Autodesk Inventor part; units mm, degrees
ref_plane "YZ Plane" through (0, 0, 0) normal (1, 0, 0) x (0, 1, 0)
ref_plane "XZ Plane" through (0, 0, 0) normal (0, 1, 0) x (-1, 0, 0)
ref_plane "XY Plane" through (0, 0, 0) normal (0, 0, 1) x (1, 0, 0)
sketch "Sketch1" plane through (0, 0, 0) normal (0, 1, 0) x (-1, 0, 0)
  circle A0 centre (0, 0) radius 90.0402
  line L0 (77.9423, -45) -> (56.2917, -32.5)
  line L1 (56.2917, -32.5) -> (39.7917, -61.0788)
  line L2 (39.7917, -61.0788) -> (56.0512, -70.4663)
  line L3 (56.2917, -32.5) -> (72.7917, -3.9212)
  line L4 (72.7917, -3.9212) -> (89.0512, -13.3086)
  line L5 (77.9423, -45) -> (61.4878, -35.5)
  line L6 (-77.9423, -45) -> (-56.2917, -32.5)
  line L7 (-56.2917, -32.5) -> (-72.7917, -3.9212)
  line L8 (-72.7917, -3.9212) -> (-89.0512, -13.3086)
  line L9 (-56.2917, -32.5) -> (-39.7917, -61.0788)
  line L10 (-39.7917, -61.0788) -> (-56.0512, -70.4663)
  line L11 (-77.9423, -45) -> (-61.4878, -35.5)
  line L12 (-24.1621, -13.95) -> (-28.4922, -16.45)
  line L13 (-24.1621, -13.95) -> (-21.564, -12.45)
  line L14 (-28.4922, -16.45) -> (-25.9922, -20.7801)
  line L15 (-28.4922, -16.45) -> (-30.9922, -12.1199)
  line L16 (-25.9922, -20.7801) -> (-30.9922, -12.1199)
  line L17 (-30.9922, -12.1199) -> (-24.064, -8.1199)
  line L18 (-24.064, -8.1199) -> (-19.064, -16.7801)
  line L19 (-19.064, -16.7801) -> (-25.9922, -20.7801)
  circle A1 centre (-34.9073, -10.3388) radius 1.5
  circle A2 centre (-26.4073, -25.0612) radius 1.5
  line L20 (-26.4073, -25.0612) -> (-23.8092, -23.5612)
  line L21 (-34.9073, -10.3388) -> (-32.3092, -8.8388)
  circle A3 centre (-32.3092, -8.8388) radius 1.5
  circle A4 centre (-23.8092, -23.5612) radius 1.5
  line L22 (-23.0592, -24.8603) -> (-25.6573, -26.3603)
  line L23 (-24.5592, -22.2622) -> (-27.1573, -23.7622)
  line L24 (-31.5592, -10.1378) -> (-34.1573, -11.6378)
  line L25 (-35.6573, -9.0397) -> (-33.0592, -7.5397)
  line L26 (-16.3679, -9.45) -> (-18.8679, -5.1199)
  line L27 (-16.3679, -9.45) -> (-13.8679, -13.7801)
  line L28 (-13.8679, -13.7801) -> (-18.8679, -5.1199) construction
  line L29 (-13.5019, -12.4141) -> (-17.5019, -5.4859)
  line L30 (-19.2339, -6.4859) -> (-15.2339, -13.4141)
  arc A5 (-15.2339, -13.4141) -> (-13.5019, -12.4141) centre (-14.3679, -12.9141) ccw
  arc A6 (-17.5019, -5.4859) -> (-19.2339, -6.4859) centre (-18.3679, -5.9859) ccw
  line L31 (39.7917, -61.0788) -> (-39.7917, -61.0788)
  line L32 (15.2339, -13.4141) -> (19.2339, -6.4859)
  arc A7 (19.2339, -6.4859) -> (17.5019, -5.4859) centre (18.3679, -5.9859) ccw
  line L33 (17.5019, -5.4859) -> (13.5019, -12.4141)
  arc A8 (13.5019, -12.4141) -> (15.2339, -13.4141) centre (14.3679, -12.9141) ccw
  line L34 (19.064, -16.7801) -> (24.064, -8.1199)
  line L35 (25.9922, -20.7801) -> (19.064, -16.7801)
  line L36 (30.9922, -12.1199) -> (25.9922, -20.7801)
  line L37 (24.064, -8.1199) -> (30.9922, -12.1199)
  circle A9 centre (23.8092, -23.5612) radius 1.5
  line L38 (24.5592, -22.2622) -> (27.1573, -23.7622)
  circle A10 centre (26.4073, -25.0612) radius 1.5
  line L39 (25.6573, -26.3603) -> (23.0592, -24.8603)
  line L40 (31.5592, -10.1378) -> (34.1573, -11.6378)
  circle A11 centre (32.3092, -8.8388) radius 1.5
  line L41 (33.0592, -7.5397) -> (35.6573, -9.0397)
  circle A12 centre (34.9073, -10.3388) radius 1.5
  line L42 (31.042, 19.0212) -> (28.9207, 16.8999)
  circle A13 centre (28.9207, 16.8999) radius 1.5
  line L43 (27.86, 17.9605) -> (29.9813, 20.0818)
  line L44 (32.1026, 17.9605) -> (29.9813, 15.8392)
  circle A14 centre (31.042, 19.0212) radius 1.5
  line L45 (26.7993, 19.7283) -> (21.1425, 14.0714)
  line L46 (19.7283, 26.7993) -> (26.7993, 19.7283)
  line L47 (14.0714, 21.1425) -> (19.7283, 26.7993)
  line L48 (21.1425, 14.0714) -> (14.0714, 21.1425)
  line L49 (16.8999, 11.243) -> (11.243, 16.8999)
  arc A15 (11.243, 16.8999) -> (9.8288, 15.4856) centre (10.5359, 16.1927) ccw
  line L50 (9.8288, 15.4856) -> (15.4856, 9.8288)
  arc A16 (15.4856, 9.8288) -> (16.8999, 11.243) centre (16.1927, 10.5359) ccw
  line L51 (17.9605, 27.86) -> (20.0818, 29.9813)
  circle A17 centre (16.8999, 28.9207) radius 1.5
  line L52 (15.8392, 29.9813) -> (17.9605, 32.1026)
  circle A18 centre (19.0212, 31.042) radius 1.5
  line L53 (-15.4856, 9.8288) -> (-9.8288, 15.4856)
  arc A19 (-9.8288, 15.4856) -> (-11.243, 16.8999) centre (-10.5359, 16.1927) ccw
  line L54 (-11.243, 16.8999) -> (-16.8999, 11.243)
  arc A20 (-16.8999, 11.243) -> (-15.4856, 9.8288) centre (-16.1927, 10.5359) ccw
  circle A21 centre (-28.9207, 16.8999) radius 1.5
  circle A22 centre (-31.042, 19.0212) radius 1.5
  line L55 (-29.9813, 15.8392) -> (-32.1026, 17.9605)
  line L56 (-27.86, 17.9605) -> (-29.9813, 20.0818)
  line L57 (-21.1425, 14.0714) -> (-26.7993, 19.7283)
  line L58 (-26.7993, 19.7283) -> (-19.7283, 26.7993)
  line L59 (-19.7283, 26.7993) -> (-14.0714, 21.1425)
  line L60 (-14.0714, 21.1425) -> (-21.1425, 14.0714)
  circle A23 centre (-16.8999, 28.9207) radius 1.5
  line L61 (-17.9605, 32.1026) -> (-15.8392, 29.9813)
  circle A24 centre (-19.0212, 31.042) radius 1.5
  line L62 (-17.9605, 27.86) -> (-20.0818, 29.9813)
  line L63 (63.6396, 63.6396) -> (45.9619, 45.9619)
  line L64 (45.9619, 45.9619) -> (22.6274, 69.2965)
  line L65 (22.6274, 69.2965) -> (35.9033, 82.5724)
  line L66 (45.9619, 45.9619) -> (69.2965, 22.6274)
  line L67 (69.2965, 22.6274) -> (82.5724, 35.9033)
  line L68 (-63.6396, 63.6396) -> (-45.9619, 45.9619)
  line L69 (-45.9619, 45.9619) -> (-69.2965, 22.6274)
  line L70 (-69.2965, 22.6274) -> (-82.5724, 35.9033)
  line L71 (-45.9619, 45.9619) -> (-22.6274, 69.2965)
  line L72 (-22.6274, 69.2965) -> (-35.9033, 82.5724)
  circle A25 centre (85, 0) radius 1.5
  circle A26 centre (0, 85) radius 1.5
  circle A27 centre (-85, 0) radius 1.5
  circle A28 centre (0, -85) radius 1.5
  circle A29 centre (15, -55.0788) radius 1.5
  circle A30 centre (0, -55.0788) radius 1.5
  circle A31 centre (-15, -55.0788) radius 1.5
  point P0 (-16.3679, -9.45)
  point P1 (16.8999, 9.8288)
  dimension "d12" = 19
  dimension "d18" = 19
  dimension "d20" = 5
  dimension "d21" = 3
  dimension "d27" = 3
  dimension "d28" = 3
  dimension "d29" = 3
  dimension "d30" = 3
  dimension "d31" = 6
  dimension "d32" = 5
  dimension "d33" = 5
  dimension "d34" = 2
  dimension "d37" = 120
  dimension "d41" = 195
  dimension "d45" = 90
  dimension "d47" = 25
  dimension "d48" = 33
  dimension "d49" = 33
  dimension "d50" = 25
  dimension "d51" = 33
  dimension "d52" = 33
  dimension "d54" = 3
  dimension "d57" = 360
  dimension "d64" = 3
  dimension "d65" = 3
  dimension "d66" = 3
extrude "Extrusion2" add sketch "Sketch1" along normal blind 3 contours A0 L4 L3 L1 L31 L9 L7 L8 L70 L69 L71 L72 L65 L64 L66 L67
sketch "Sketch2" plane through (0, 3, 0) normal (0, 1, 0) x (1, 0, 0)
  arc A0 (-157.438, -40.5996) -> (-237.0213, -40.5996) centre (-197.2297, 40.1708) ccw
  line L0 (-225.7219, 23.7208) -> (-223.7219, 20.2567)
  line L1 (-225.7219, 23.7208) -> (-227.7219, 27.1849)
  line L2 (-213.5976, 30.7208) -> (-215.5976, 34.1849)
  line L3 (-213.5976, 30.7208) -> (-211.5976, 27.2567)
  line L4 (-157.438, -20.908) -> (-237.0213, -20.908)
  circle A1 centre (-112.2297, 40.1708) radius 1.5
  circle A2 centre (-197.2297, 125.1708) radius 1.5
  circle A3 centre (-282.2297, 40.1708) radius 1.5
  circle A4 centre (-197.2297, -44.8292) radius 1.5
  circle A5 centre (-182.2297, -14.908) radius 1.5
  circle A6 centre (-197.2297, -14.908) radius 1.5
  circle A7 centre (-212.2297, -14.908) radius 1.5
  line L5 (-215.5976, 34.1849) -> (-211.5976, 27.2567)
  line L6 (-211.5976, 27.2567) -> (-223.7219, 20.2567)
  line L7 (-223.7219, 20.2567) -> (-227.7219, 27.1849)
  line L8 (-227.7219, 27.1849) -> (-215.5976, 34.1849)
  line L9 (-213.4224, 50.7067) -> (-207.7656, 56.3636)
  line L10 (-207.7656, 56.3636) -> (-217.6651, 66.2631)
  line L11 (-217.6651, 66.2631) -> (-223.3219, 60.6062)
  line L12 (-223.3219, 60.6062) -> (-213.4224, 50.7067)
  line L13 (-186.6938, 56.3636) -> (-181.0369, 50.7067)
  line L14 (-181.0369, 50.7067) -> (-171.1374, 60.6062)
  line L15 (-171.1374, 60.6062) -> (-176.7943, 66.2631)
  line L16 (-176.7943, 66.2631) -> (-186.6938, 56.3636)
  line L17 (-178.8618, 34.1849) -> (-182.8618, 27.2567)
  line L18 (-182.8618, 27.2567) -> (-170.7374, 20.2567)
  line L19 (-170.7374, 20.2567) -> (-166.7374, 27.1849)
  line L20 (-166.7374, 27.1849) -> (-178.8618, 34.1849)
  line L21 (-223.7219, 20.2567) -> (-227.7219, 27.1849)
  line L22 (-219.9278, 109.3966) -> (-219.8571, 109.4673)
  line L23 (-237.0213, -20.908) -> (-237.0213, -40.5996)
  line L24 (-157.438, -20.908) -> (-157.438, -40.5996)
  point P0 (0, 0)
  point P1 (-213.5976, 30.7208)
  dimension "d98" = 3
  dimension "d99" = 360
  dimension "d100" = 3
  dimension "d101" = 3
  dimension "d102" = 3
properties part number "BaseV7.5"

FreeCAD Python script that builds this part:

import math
import FreeCAD as App
import Part
import Sketcher
from FreeCAD import Vector
Q = App.Units.Quantity


def add_polygon(sketch, points):
    """Adds a closed chain of lines whose ends are joined by coincident constraints."""
    first, n = sketch.GeometryCount, len(points)
    for a, b in zip(points, points[1:] + points[:1]):
        sketch.addGeometry(Part.LineSegment(App.Vector(*a, 0), App.Vector(*b, 0)), False)
    for i in range(n):
        sketch.addConstraint(Sketcher.Constraint("Coincident", first + i, 2, first + (i + 1) % n, 1))

doc = App.newDocument("Part")
params = doc.addObject("Spreadsheet::Sheet", "Params")
for row, (alias, value) in enumerate([
    ("sketch1_diameter", "3 mm"),
    ("sketch1_radius", "1 mm"),
    ("sketch1_length", "33 mm"),
    ("sketch1_length2", "66 mm"),
    ("sketch1_length3", "10 mm"),
    ("pad1_length", "3 mm"),
], start=1):
    params.set(f"A{row}", alias)
    params.set(f"B{row}", "=" + value)
    params.setAlias(f"B{row}", alias)

body = doc.addObject("PartDesign::Body", "Body")

sketch1 = doc.addObject("Sketcher::SketchObject", "Sketch")
body.addObject(sketch1)
sketch1.AttachmentSupport = (doc.XZ_Plane, [""])
sketch1.MapMode = "FlatFace"
sketch1.addGeometry(Part.ArcOfCircle(Part.Circle(Vector(0, 0, 0), Vector(0, 0, 1), 90), math.radians(157), math.radians(188)), False)
sketch1.addGeometry(Part.LineSegment(Vector(-82.6, 35.9, 0), Vector(-69.3, 22.6, 0)), False)
sketch1.addGeometry(Part.LineSegment(Vector(-69.3, 22.6, 0), Vector(-46, 46, 0)), False)
sketch1.addGeometry(Part.LineSegment(Vector(-46, 46, 0), Vector(-22.6, 69.3, 0)), False)
sketch1.addGeometry(Part.LineSegment(Vector(-22.6, 69.3, 0), Vector(-35.9, 82.6, 0)), False)
sketch1.addGeometry(Part.ArcOfCircle(Part.Circle(Vector(0, 0, 0), Vector(0, 0, 1), 90), math.radians(67), math.radians(113)), False)
sketch1.addGeometry(Part.LineSegment(Vector(35.9, 82.6, 0), Vector(22.6, 69.3, 0)), False)
sketch1.addGeometry(Part.LineSegment(Vector(22.6, 69.3, 0), Vector(46, 46, 0)), False)
sketch1.addGeometry(Part.LineSegment(Vector(46, 46, 0), Vector(69.3, 22.6, 0)), False)
sketch1.addGeometry(Part.LineSegment(Vector(69.3, 22.6, 0), Vector(82.6, 35.9, 0)), False)
sketch1.addGeometry(Part.ArcOfCircle(Part.Circle(Vector(0, 0, 0), Vector(0, 0, 1), 90), math.radians(-8), math.radians(23)), False)
sketch1.addGeometry(Part.LineSegment(Vector(89.1, -13.3, 0), Vector(72.8, -3.9, 0)), False)
sketch1.addGeometry(Part.LineSegment(Vector(72.8, -3.9, 0), Vector(39.8, -61.1, 0)), False)
sketch1.addGeometry(Part.LineSegment(Vector(39.8, -61.1, 0), Vector(-39.8, -61.1, 0)), False)
sketch1.addGeometry(Part.LineSegment(Vector(-39.8, -61.1, 0), Vector(-72.8, -3.9, 0)), False)
sketch1.addGeometry(Part.LineSegment(Vector(-72.8, -3.9, 0), Vector(-89.1, -13.3, 0)), False)
sketch1.addGeometry(Part.Circle(Vector(15, -55.1, 0), Vector(0, 0, 1), 1.5), False)
sketch1.addGeometry(Part.ArcOfCircle(Part.Circle(Vector(26.4, -25.1, 0), Vector(0, 0, 1), 1.5), math.radians(-120), math.radians(60)), False)
sketch1.addGeometry(Part.LineSegment(Vector(27.2, -23.8, 0), Vector(24.6, -22.3, 0)), False)
sketch1.addGeometry(Part.ArcOfCircle(Part.Circle(Vector(23.8, -23.6, 0), Vector(0, 0, 1), 1.5), math.radians(60), math.radians(240)), False)
sketch1.addGeometry(Part.LineSegment(Vector(23.1, -24.9, 0), Vector(25.7, -26.4, 0)), False)
add_polygon(sketch1, [(26, -20.8), (31, -12.1), (24.1, -8.1), (19.1, -16.8)])
sketch1.addGeometry(Part.ArcOfCircle(Part.Circle(Vector(34.9, -10.3, 0), Vector(0, 0, 1), 1.5), math.radians(-120), math.radians(60)), False)
sketch1.addGeometry(Part.LineSegment(Vector(35.7, -9, 0), Vector(33.1, -7.5, 0)), False)
sketch1.addGeometry(Part.ArcOfCircle(Part.Circle(Vector(32.3, -8.8, 0), Vector(0, 0, 1), 1.5), math.radians(60), math.radians(240)), False)
sketch1.addGeometry(Part.LineSegment(Vector(31.6, -10.1, 0), Vector(34.2, -11.6, 0)), False)
sketch1.addGeometry(Part.ArcOfCircle(Part.Circle(Vector(18.4, -6, 0), Vector(0, 0, 1), 1), math.radians(-30), math.radians(150)), False)
sketch1.addGeometry(Part.LineSegment(Vector(17.5, -5.5, 0), Vector(13.5, -12.4, 0)), False)
sketch1.addGeometry(Part.ArcOfCircle(Part.Circle(Vector(14.4, -12.9, 0), Vector(0, 0, 1), 1), math.radians(150), math.radians(330)), False)
sketch1.addGeometry(Part.LineSegment(Vector(15.2, -13.4, 0), Vector(19.2, -6.5, 0)), False)
sketch1.addGeometry(Part.Circle(Vector(0, -55.1, 0), Vector(0, 0, 1), 1.5), False)
sketch1.addGeometry(Part.Circle(Vector(-15, -55.1, 0), Vector(0, 0, 1), 1.5), False)
sketch1.addGeometry(Part.ArcOfCircle(Part.Circle(Vector(-23.8, -23.6, 0), Vector(0, 0, 1), 1.5), math.radians(-60), math.radians(120)), False)
sketch1.addGeometry(Part.LineSegment(Vector(-24.6, -22.3, 0), Vector(-27.2, -23.8, 0)), False)
sketch1.addGeometry(Part.ArcOfCircle(Part.Circle(Vector(-26.4, -25.1, 0), Vector(0, 0, 1), 1.5), math.radians(120), math.radians(300)), False)
sketch1.addGeometry(Part.LineSegment(Vector(-25.7, -26.4, 0), Vector(-23.1, -24.9, 0)), False)
sketch1.addGeometry(Part.LineSegment(Vector(-19.2, -6.5, 0), Vector(-15.2, -13.4, 0)), False)
sketch1.addGeometry(Part.ArcOfCircle(Part.Circle(Vector(-14.4, -12.9, 0), Vector(0, 0, 1), 1), math.radians(-150), math.radians(30)), False)
sketch1.addGeometry(Part.LineSegment(Vector(-13.5, -12.4, 0), Vector(-17.5, -5.5, 0)), False)
sketch1.addGeometry(Part.ArcOfCircle(Part.Circle(Vector(-18.4, -6, 0), Vector(0, 0, 1), 1), math.radians(30), math.radians(210)), False)
add_polygon(sketch1, [(-26, -20.8), (-19.1, -16.8), (-24.1, -8.1), (-31, -12.1)])
sketch1.addGeometry(Part.LineSegment(Vector(-34.2, -11.6, 0), Vector(-31.6, -10.1, 0)), False)
sketch1.addGeometry(Part.ArcOfCircle(Part.Circle(Vector(-32.3, -8.8, 0), Vector(0, 0, 1), 1.5), math.radians(-60), math.radians(120)), False)
sketch1.addGeometry(Part.LineSegment(Vector(-33.1, -7.5, 0), Vector(-35.7, -9, 0)), False)
sketch1.addGeometry(Part.ArcOfCircle(Part.Circle(Vector(-34.9, -10.3, 0), Vector(0, 0, 1), 1.5), math.radians(120), math.radians(300)), False)
sketch1.addGeometry(Part.Circle(Vector(85, 0, 0), Vector(0, 0, 1), 1.5), False)
sketch1.addGeometry(Part.ArcOfCircle(Part.Circle(Vector(28.9, 16.9, 0), Vector(0, 0, 1), 1.5), math.radians(135), math.radians(315)), False)
sketch1.addGeometry(Part.LineSegment(Vector(30, 15.8, 0), Vector(32.1, 18, 0)), False)
sketch1.addGeometry(Part.ArcOfCircle(Part.Circle(Vector(31, 19, 0), Vector(0, 0, 1), 1.5), math.radians(-45), math.radians(135)), False)
sketch1.addGeometry(Part.LineSegment(Vector(30, 20.1, 0), Vector(27.9, 18, 0)), False)
sketch1.addGeometry(Part.LineSegment(Vector(9.8, 15.5, 0), Vector(15.5, 9.8, 0)), False)
sketch1.addGeometry(Part.ArcOfCircle(Part.Circle(Vector(16.2, 10.5, 0), Vector(0, 0, 1), 1), math.radians(-135), math.radians(45)), False)
sketch1.addGeometry(Part.LineSegment(Vector(16.9, 11.2, 0), Vector(11.2, 16.9, 0)), False)
sketch1.addGeometry(Part.ArcOfCircle(Part.Circle(Vector(10.5, 16.2, 0), Vector(0, 0, 1), 1), math.radians(45), math.radians(225)), False)
add_polygon(sketch1, [(14.1, 21.1), (21.1, 14.1), (26.8, 19.7), (19.7, 26.8)])
sketch1.addGeometry(Part.ArcOfCircle(Part.Circle(Vector(16.9, 28.9, 0), Vector(0, 0, 1), 1.5), math.radians(135), math.radians(315)), False)
sketch1.addGeometry(Part.LineSegment(Vector(18, 27.9, 0), Vector(20.1, 30, 0)), False)
sketch1.addGeometry(Part.ArcOfCircle(Part.Circle(Vector(19, 31, 0), Vector(0, 0, 1), 1.5), math.radians(-45), math.radians(135)), False)
sketch1.addGeometry(Part.LineSegment(Vector(18, 32.1, 0), Vector(15.8, 30, 0)), False)
sketch1.addGeometry(Part.LineSegment(Vector(-11.2, 16.9, 0), Vector(-16.9, 11.2, 0)), False)
sketch1.addGeometry(Part.ArcOfCircle(Part.Circle(Vector(-16.2, 10.5, 0), Vector(0, 0, 1), 1), math.radians(135), math.radians(315)), False)
sketch1.addGeometry(Part.LineSegment(Vector(-15.5, 9.8, 0), Vector(-9.8, 15.5, 0)), False)
sketch1.addGeometry(Part.ArcOfCircle(Part.Circle(Vector(-10.5, 16.2, 0), Vector(0, 0, 1), 1), math.radians(-45), math.radians(135)), False)
add_polygon(sketch1, [(-19.7, 26.8), (-26.8, 19.7), (-21.1, 14.1), (-14.1, 21.1)])
sketch1.addGeometry(Part.ArcOfCircle(Part.Circle(Vector(-28.9, 16.9, 0), Vector(0, 0, 1), 1.5), math.radians(-135), math.radians(45)), False)
sketch1.addGeometry(Part.LineSegment(Vector(-27.9, 18, 0), Vector(-30, 20.1, 0)), False)
sketch1.addGeometry(Part.ArcOfCircle(Part.Circle(Vector(-31, 19, 0), Vector(0, 0, 1), 1.5), math.radians(45), math.radians(225)), False)
sketch1.addGeometry(Part.LineSegment(Vector(-32.1, 18, 0), Vector(-30, 15.8, 0)), False)
sketch1.addGeometry(Part.LineSegment(Vector(-20.1, 30, 0), Vector(-18, 27.9, 0)), False)
sketch1.addGeometry(Part.ArcOfCircle(Part.Circle(Vector(-16.9, 28.9, 0), Vector(0, 0, 1), 1.5), math.radians(-135), math.radians(45)), False)
sketch1.addGeometry(Part.LineSegment(Vector(-15.8, 30, 0), Vector(-18, 32.1, 0)), False)
sketch1.addGeometry(Part.ArcOfCircle(Part.Circle(Vector(-19, 31, 0), Vector(0, 0, 1), 1.5), math.radians(45), math.radians(225)), False)
sketch1.addGeometry(Part.Circle(Vector(-85, 0, 0), Vector(0, 0, 1), 1.5), False)
sketch1.addGeometry(Part.Circle(Vector(0, 85, 0), Vector(0, 0, 1), 1.5), False)
sketch1.addConstraint(Sketcher.Constraint("Coincident", 0, 1, 1, 1))
sketch1.addConstraint(Sketcher.Constraint("Coincident", 1, 2, 2, 1))
sketch1.addConstraint(Sketcher.Constraint("Coincident", 2, 2, 3, 1))
sketch1.addConstraint(Sketcher.Constraint("Coincident", 3, 2, 4, 1))
sketch1.addConstraint(Sketcher.Constraint("Coincident", 4, 2, 5, 2))
sketch1.addConstraint(Sketcher.Constraint("Coincident", 5, 1, 6, 1))
sketch1.addConstraint(Sketcher.Constraint("Coincident", 6, 2, 7, 1))
sketch1.addConstraint(Sketcher.Constraint("Coincident", 7, 2, 8, 1))
sketch1.addConstraint(Sketcher.Constraint("Coincident", 8, 2, 9, 1))
sketch1.addConstraint(Sketcher.Constraint("Coincident", 9, 2, 10, 2))
sketch1.addConstraint(Sketcher.Constraint("Coincident", 10, 1, 11, 1))
sketch1.addConstraint(Sketcher.Constraint("Coincident", 11, 2, 12, 1))
sketch1.addConstraint(Sketcher.Constraint("Coincident", 12, 2, 13, 1))
sketch1.addConstraint(Sketcher.Constraint("Coincident", 13, 2, 14, 1))
sketch1.addConstraint(Sketcher.Constraint("Coincident", 14, 2, 15, 1))
sketch1.addConstraint(Sketcher.Constraint("Coincident", 15, 2, 0, 2))
sketch1.addConstraint(Sketcher.Constraint("Tangent", 17, 2, 18, 1))
sketch1.addConstraint(Sketcher.Constraint("Tangent", 18, 2, 19, 1))
sketch1.addConstraint(Sketcher.Constraint("Tangent", 19, 2, 20, 1))
sketch1.addConstraint(Sketcher.Constraint("Tangent", 20, 2, 17, 1))
sketch1.addConstraint(Sketcher.Constraint("Tangent", 25, 2, 26, 1))
sketch1.addConstraint(Sketcher.Constraint("Tangent", 26, 2, 27, 1))
sketch1.addConstraint(Sketcher.Constraint("Tangent", 27, 2, 28, 1))
sketch1.addConstraint(Sketcher.Constraint("Tangent", 28, 2, 25, 1))
sketch1.addConstraint(Sketcher.Constraint("Tangent", 29, 2, 30, 1))
sketch1.addConstraint(Sketcher.Constraint("Tangent", 30, 2, 31, 1))
sketch1.addConstraint(Sketcher.Constraint("Tangent", 31, 2, 32, 1))
sketch1.addConstraint(Sketcher.Constraint("Tangent", 32, 2, 29, 1))
sketch1.addConstraint(Sketcher.Constraint("Tangent", 35, 2, 36, 1))
sketch1.addConstraint(Sketcher.Constraint("Tangent", 36, 2, 37, 1))
sketch1.addConstraint(Sketcher.Constraint("Tangent", 37, 2, 38, 1))
sketch1.addConstraint(Sketcher.Constraint("Tangent", 38, 2, 35, 1))
sketch1.addConstraint(Sketcher.Constraint("Tangent", 39, 2, 40, 1))
sketch1.addConstraint(Sketcher.Constraint("Tangent", 40, 2, 41, 1))
sketch1.addConstraint(Sketcher.Constraint("Tangent", 41, 2, 42, 1))
sketch1.addConstraint(Sketcher.Constraint("Tangent", 42, 2, 39, 1))
sketch1.addConstraint(Sketcher.Constraint("Tangent", 47, 2, 48, 1))
sketch1.addConstraint(Sketcher.Constraint("Tangent", 48, 2, 49, 1))
sketch1.addConstraint(Sketcher.Constraint("Tangent", 49, 2, 50, 1))
sketch1.addConstraint(Sketcher.Constraint("Tangent", 50, 2, 47, 1))
sketch1.addConstraint(Sketcher.Constraint("Tangent", 52, 2, 53, 1))
sketch1.addConstraint(Sketcher.Constraint("Tangent", 53, 2, 54, 1))
sketch1.addConstraint(Sketcher.Constraint("Tangent", 54, 2, 55, 1))
sketch1.addConstraint(Sketcher.Constraint("Tangent", 55, 2, 52, 1))
sketch1.addConstraint(Sketcher.Constraint("Tangent", 56, 2, 57, 1))
sketch1.addConstraint(Sketcher.Constraint("Tangent", 57, 2, 58, 1))
sketch1.addConstraint(Sketcher.Constraint("Tangent", 58, 2, 59, 1))
sketch1.addConstraint(Sketcher.Constraint("Tangent", 59, 2, 56, 1))
sketch1.addConstraint(Sketcher.Constraint("Tangent", 64, 2, 65, 1))
sketch1.addConstraint(Sketcher.Constraint("Tangent", 65, 2, 66, 1))
sketch1.addConstraint(Sketcher.Constraint("Tangent", 66, 2, 67, 1))
sketch1.addConstraint(Sketcher.Constraint("Tangent", 67, 2, 64, 1))
sketch1.addConstraint(Sketcher.Constraint("Tangent", 68, 2, 69, 1))
sketch1.addConstraint(Sketcher.Constraint("Tangent", 69, 2, 70, 1))
sketch1.addConstraint(Sketcher.Constraint("Tangent", 70, 2, 71, 1))
sketch1.addConstraint(Sketcher.Constraint("Tangent", 71, 2, 68, 1))
sketch1.addConstraint(Sketcher.Constraint("Tangent", 76, 2, 77, 1))
sketch1.addConstraint(Sketcher.Constraint("Tangent", 77, 2, 78, 1))
sketch1.addConstraint(Sketcher.Constraint("Tangent", 78, 2, 79, 1))
sketch1.addConstraint(Sketcher.Constraint("Tangent", 79, 2, 76, 1))
sketch1.addConstraint(Sketcher.Constraint("Tangent", 80, 2, 81, 1))
sketch1.addConstraint(Sketcher.Constraint("Tangent", 81, 2, 82, 1))
sketch1.addConstraint(Sketcher.Constraint("Tangent", 82, 2, 83, 1))
sketch1.addConstraint(Sketcher.Constraint("Tangent", 83, 2, 80, 1))
sketch1.addConstraint(Sketcher.Constraint("Horizontal", 13))
sketch1.addConstraint(Sketcher.Constraint("Coincident", 0, 3, -1, 1))
sketch1.addConstraint(Sketcher.Constraint("Coincident", 5, 3, -1, 1))
sketch1.addConstraint(Sketcher.Constraint("Coincident", 10, 3, -1, 1))
sketch1.addConstraint(Sketcher.Constraint("Equal", 0, 5))
sketch1.addConstraint(Sketcher.Constraint("Equal", 5, 10))
sketch1.addConstraint(Sketcher.Constraint("Equal", 16, 17))
sketch1.addConstraint(Sketcher.Constraint("Equal", 17, 19))
sketch1.addConstraint(Sketcher.Constraint("Equal", 19, 25))
sketch1.addConstraint(Sketcher.Constraint("Equal", 25, 27))
sketch1.addConstraint(Sketcher.Constraint("Equal", 29, 31))
sketch1.addConstraint(Sketcher.Constraint("Equal", 27, 33))
sketch1.addConstraint(Sketcher.Constraint("Equal", 33, 34))
sketch1.addConstraint(Sketcher.Constraint("Equal", 34, 35))
sketch1.addConstraint(Sketcher.Constraint("Equal", 35, 37))
sketch1.addConstraint(Sketcher.Constraint("Equal", 31, 40))
sketch1.addConstraint(Sketcher.Constraint("Equal", 40, 42))
sketch1.addConstraint(Sketcher.Constraint("Equal", 37, 48))
sketch1.addConstraint(Sketcher.Constraint("Equal", 48, 50))
sketch1.addConstraint(Sketcher.Constraint("Equal", 50, 51))
sketch1.addConstraint(Sketcher.Constraint("Equal", 51, 52))
sketch1.addConstraint(Sketcher.Constraint("Equal", 52, 54))
sketch1.addConstraint(Sketcher.Constraint("Equal", 42, 57))
sketch1.addConstraint(Sketcher.Constraint("Equal", 57, 59))
sketch1.addConstraint(Sketcher.Constraint("Equal", 54, 64))
sketch1.addConstraint(Sketcher.Constraint("Equal", 64, 66))
sketch1.addConstraint(Sketcher.Constraint("Equal", 59, 69))
sketch1.addConstraint(Sketcher.Constraint("Equal", 69, 71))
sketch1.addConstraint(Sketcher.Constraint("Equal", 66, 76))
sketch1.addConstraint(Sketcher.Constraint("Equal", 76, 78))
sketch1.addConstraint(Sketcher.Constraint("Equal", 78, 81))
sketch1.addConstraint(Sketcher.Constraint("Equal", 81, 83))
sketch1.addConstraint(Sketcher.Constraint("Equal", 83, 84))
sketch1.addConstraint(Sketcher.Constraint("Equal", 84, 85))
sketch1.addConstraint(Sketcher.Constraint("Symmetric", 51, 3, 84, 3, -1, 1))
sketch1.addConstraint(Sketcher.Constraint("Symmetric", 16, 3, 34, 3, -2))
sketch1.addConstraint(Sketcher.Constraint("Symmetric", 19, 3, 35, 3, -2))
sketch1.addConstraint(Sketcher.Constraint("Symmetric", 17, 3, 37, 3, -2))
sketch1.addConstraint(Sketcher.Constraint("Symmetric", 31, 3, 40, 3, -2))
sketch1.addConstraint(Sketcher.Constraint("Symmetric", 29, 3, 42, 3, -2))
sketch1.addConstraint(Sketcher.Constraint("Symmetric", 27, 3, 48, 3, -2))
sketch1.addConstraint(Sketcher.Constraint("Symmetric", 25, 3, 50, 3, -2))
sketch1.addConstraint(Sketcher.Constraint("Symmetric", 57, 3, 69, 3, -2))
sketch1.addConstraint(Sketcher.Constraint("Symmetric", 59, 3, 71, 3, -2))
sketch1.addConstraint(Sketcher.Constraint("Symmetric", 52, 3, 76, 3, -2))
sketch1.addConstraint(Sketcher.Constraint("Symmetric", 54, 3, 78, 3, -2))
sketch1.addConstraint(Sketcher.Constraint("Symmetric", 64, 3, 81, 3, -2))
sketch1.addConstraint(Sketcher.Constraint("Symmetric", 66, 3, 83, 3, -2))
sketch1.addConstraint(Sketcher.Constraint("Symmetric", 3, 2, 6, 2, -2))
sketch1.addConstraint(Sketcher.Constraint("Symmetric", 2, 2, 7, 2, -2))
sketch1.addConstraint(Sketcher.Constraint("Symmetric", 1, 2, 8, 2, -2))
sketch1.addConstraint(Sketcher.Constraint("Symmetric", 11, 2, 14, 2, -2))
sketch1.addConstraint(Sketcher.Constraint("Symmetric", 23, 2, 43, 2, -2))
sketch1.addConstraint(Sketcher.Constraint("Symmetric", 22, 2, 44, 2, -2))
sketch1.addConstraint(Sketcher.Constraint("Symmetric", 21, 2, 45, 2, -2))
sketch1.addConstraint(Sketcher.Constraint("Symmetric", 24, 2, 46, 2, -2))
sketch1.addConstraint(Sketcher.Constraint("Symmetric", 61, 2, 72, 2, -2))
sketch1.addConstraint(Sketcher.Constraint("Symmetric", 60, 2, 73, 2, -2))
sketch1.addConstraint(Sketcher.Constraint("Symmetric", 63, 2, 74, 2, -2))
sketch1.addConstraint(Sketcher.Constraint("Symmetric", 62, 2, 75, 2, -2))
sketch1.addConstraint(Sketcher.Constraint("PointOnObject", 33, 3, -2))
sketch1.addConstraint(Sketcher.Constraint("PointOnObject", 51, 3, -1))
sketch1.addConstraint(Sketcher.Constraint("PointOnObject", 85, 3, -2))
sketch1.addConstraint(Sketcher.Constraint("Perpendicular", 1, 2))
sketch1.addConstraint(Sketcher.Constraint("Parallel", 2, 3))
sketch1.addConstraint(Sketcher.Constraint("Perpendicular", 3, 4))
sketch1.addConstraint(Sketcher.Constraint("Perpendicular", 4, 6))
sketch1.addConstraint(Sketcher.Constraint("Perpendicular", 6, 7))
sketch1.addConstraint(Sketcher.Constraint("Perpendicular", 8, 9))
sketch1.addConstraint(Sketcher.Constraint("Perpendicular", 11, 12))
sketch1.addConstraint(Sketcher.Constraint("Perpendicular", 14, 15))
sketch1.addConstraint(Sketcher.Constraint("Perpendicular", 12, 18))
sketch1.addConstraint(Sketcher.Constraint("Perpendicular", 20, 21))
sketch1.addConstraint(Sketcher.Constraint("Perpendicular", 21, 22))
sketch1.addConstraint(Sketcher.Constraint("Perpendicular", 22, 23))
sketch1.addConstraint(Sketcher.Constraint("Perpendicular", 23, 24))
sketch1.addConstraint(Sketcher.Constraint("Parallel", 24, 26))
sketch1.addConstraint(Sketcher.Constraint("Perpendicular", 28, 30))
sketch1.addConstraint(Sketcher.Constraint("Parallel", 15, 36))
sketch1.addConstraint(Sketcher.Constraint("Parallel", 9, 53))
sketch1.addConstraint(Sketcher.Constraint("Perpendicular", 55, 56))
sketch1.addConstraint(Sketcher.Constraint("Parallel", 58, 60))
sketch1.addConstraint(Sketcher.Constraint("Perpendicular", 60, 61))
sketch1.addConstraint(Sketcher.Constraint("Perpendicular", 61, 62))
sketch1.addConstraint(Sketcher.Constraint("Perpendicular", 62, 63))
sketch1.addConstraint(Sketcher.Constraint("Parallel", 63, 65))
sketch1.addConstraint(Sketcher.Constraint("Horizontal", 16, 3, 33, 3))
sketch1.addConstraint(Sketcher.Constraint("Horizontal", 53, 2, 55, 2))
sketch1.addConstraint(Sketcher.Constraint("Horizontal", 76, 3, 58, 2))
sketch1.addConstraint(Sketcher.Constraint("Horizontal", 65, 2, 67, 2))
sketch1.addConstraint(Sketcher.Constraint("Vertical", 64, 3, 57, 2))
sketch1.addConstraint(Sketcher.Constraint("Equal", 2, 3))
sketch1.addConstraint(Sketcher.Constraint("Equal", 1, 4))
sketch1.addConstraint(Sketcher.Constraint("Equal", 9, 11))
sketch1.addConstraint(Sketcher.Constraint("Equal", 20, 26))
sketch1.addConstraint(Sketcher.Constraint("Equal", 24, 30))
sketch1.addConstraint(Sketcher.Constraint("Equal", 49, 53))
sketch1.addConstraint(Sketcher.Constraint("Equal", 45, 56))
sketch1.addConstraint(Sketcher.Constraint("Equal", 46, 60))
sketch1.addConstraint(Sketcher.Constraint("Equal", 58, 61))
sketch1.addConstraint(Sketcher.Constraint("Diameter", 16, 3.0))
sketch1.addConstraint(Sketcher.Constraint("Radius", 29, 1.0))
sketch1.addConstraint(Sketcher.Constraint("Angle", 12, Q("-120 deg")))
sketch1.addConstraint(Sketcher.Constraint("Distance", 2, 33.0))
sketch1.addConstraint(Sketcher.Constraint("Distance", 12, 66.0))
sketch1.addConstraint(Sketcher.Constraint("Distance", 21, 10.0))
sketch1.addConstraint(Sketcher.Constraint("Distance", 22, 8.0))
sketch1.addConstraint(Sketcher.Constraint("DistanceX", -1, 1, 16, 3, 15.0))
sketch1.addConstraint(Sketcher.Constraint("DistanceX", -1, 1, 51, 3, 85.0))
sketch1.addConstraint(Sketcher.Constraint("DistanceY", -1, 1, 85, 3, 85.0))
sketch1.addConstraint(Sketcher.Constraint("DistanceY", -1, 1, 52, 3, 16.9))
sketch1.addConstraint(Sketcher.Constraint("DistanceX", -1, 1, 64, 3, 16.9))
sketch1.addConstraint(Sketcher.Constraint("Radius", 0, 90.0402))
sketch1.addConstraint(Sketcher.Constraint("DistanceY", 21, 2, -1, 1, 12.12))
sketch1.addConstraint(Sketcher.Constraint("DistanceX", -1, 1, 55, 2, 27.86))
sketch1.addConstraint(Sketcher.Constraint("DistanceY", -1, 1, 64, 2, 27.86))
sketch1.addConstraint(Sketcher.Constraint("Distance", 1, 18.775))
sketch1.addConstraint(Sketcher.Constraint("DistanceX", 13, 2, 13, 1, 79.5834))
sketch1.addConstraint(Sketcher.Constraint("DistanceX", -1, 1, 29, 3, 18.368))
sketch1.addConstraint(Sketcher.Constraint("DistanceY", 29, 3, -1, 1, 5.986))
sketch1.addConstraint(Sketcher.Constraint("DistanceX", -1, 1, 22, 2, 24.064))
sketch1.addConstraint(Sketcher.Constraint("DistanceY", 16, 3, -1, 1, 55.0788))
sketch1.addConstraint(Sketcher.Constraint("DistanceX", -1, 1, 17, 3, 26.4073))
sketch1.addConstraint(Sketcher.Constraint("DistanceY", 17, 3, -1, 1, 25.0612))
sketch1.addConstraint(Sketcher.Constraint("DistanceX", -1, 1, 25, 3, 34.9073))
sketch1.addConstraint(Sketcher.Constraint("DistanceY", 25, 3, -1, 1, 10.3388))
sketch1.addConstraint(Sketcher.Constraint("DistanceX", -1, 1, 60, 2, 21.1425))
sketch1.addConstraint(Sketcher.Constraint("DistanceY", -1, 1, 60, 2, 14.0714))
sketch1.setExpression("Constraints[180]", "Params.sketch1_diameter")
sketch1.setExpression("Constraints[181]", "Params.sketch1_radius")
sketch1.setExpression("Constraints[183]", "Params.sketch1_length")
sketch1.setExpression("Constraints[184]", "Params.sketch1_length2")
sketch1.setExpression("Constraints[185]", "Params.sketch1_length3")
pad1 = doc.addObject("PartDesign::Pad", "Pad")
body.addObject(pad1)
pad1.Profile = sketch1
pad1.setExpression("Length", "Params.pad1_length")
pad1.Reversed = True

doc.recompute()
